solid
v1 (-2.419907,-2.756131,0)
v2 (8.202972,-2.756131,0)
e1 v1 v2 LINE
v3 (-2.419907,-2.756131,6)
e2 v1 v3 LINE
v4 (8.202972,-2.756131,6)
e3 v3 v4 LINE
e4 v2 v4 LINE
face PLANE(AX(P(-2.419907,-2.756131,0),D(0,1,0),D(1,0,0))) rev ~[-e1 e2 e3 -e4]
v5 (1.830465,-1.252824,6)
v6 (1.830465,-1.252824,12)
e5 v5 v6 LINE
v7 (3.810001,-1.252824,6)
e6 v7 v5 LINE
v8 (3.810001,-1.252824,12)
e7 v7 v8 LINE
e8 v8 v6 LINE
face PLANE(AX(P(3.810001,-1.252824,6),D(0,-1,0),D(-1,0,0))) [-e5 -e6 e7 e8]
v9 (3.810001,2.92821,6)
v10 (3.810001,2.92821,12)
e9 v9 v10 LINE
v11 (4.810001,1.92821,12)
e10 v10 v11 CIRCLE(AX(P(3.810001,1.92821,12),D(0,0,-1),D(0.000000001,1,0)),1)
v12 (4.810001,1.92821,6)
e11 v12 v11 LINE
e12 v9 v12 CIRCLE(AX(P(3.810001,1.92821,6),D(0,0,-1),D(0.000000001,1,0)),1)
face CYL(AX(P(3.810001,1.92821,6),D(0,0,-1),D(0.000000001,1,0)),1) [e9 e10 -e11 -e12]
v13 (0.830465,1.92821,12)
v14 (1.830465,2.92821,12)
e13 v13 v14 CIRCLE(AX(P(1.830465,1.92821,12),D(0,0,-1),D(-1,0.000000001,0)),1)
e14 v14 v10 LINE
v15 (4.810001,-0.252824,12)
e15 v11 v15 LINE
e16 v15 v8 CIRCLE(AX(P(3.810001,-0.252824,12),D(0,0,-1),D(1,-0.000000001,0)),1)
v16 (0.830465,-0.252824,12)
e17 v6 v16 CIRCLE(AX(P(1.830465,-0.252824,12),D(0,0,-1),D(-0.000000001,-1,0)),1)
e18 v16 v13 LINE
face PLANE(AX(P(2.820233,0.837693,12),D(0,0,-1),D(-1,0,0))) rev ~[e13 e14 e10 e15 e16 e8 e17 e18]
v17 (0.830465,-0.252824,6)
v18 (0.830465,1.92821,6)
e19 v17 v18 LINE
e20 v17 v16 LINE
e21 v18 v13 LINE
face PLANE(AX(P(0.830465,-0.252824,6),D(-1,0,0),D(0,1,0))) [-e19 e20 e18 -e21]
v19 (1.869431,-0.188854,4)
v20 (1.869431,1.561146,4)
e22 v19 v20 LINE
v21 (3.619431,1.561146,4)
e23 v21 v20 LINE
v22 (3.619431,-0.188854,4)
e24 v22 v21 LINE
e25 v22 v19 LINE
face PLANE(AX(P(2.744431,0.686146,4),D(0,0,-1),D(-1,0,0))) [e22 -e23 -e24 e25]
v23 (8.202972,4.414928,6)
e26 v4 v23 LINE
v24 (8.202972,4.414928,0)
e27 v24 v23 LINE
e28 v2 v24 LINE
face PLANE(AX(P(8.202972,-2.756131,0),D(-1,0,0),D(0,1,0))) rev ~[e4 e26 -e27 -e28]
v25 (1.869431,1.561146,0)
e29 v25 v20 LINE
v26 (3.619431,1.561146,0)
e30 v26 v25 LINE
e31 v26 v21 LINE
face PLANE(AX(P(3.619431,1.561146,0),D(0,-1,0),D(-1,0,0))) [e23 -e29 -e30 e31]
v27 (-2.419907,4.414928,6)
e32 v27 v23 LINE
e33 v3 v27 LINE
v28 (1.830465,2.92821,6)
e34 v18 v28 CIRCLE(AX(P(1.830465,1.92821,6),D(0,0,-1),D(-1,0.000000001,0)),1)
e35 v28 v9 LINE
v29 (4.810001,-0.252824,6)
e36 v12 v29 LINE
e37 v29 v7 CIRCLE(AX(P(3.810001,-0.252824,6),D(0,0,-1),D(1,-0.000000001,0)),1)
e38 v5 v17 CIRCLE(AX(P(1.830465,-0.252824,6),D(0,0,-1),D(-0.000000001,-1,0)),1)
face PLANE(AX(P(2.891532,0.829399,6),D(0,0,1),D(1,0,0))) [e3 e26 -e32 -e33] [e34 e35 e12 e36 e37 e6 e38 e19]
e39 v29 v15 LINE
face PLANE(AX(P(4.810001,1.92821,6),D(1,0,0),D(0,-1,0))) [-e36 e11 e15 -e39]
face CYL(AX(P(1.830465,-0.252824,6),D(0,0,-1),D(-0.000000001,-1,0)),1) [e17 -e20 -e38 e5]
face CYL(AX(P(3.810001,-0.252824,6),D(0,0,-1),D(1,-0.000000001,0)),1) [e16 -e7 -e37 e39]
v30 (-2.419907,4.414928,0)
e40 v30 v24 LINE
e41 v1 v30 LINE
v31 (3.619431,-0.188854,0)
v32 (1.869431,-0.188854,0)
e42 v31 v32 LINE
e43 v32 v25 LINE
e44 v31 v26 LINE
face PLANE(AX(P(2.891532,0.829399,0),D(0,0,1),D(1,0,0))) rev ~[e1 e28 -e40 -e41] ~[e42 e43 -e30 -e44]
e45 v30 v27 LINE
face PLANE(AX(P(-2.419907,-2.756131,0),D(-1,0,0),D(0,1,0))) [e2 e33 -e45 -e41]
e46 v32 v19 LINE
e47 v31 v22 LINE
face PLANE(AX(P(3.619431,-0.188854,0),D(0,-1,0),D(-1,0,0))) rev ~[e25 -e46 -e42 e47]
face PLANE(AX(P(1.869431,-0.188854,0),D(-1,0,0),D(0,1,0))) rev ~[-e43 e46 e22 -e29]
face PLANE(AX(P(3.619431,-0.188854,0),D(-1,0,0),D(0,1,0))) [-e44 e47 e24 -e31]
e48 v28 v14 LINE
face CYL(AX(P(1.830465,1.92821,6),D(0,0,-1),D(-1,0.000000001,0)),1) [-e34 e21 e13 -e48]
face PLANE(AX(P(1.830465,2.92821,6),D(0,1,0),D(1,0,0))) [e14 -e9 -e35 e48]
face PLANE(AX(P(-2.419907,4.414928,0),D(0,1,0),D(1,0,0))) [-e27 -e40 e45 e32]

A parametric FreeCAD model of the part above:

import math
import FreeCAD as App
import Part
import Sketcher
Q = App.Units.Quantity

doc = App.newDocument("Part")
body = doc.addObject("PartDesign::Body", "Body")

# Sketch on XY plane
sketch1 = body.newObject("Sketcher::SketchObject", "Sketch")
sketch1.AttachmentSupport = (doc.getObject("XY_Plane"), [""])
sketch1.MapMode = "FlatFace"
sketch1.addGeometry([
    Part.LineSegment(App.Vector(-2.419907, 4.414928, 0), App.Vector(-2.419907, -2.756131, 0)),
    Part.LineSegment(App.Vector(-2.419907, -2.756131, 0), App.Vector(8.202972, -2.756131, 0)),
    Part.LineSegment(App.Vector(8.202972, -2.756131, 0), App.Vector(8.202972, 4.414928, 0)),
    Part.LineSegment(App.Vector(8.202972, 4.414928, 0), App.Vector(-2.419907, 4.414928, 0)),
], False)
sketch1.addConstraint([
    Sketcher.Constraint("Coincident", 0, 2, 1, 1),
    Sketcher.Constraint("Coincident", 1, 2, 2, 1),
    Sketcher.Constraint("Coincident", 2, 2, 3, 1),
    Sketcher.Constraint("Coincident", 3, 2, 0, 1),
    Sketcher.Constraint("Vertical", 0),
    Sketcher.Constraint("Horizontal", 1),
    Sketcher.Constraint("Vertical", 2),
    Sketcher.Constraint("Horizontal", 3),
    Sketcher.Constraint("DistanceX", 1, 1, 1, 2, Q("10.622879 mm")),
    Sketcher.Constraint("DistanceY", 0, 2, 0, 1, Q("7.171059 mm")),
    Sketcher.Constraint("DistanceY", 0, 2, -1, 1, Q("2.756131 mm")),
    Sketcher.Constraint("DistanceX", -1, 1, 1, 2, Q("8.202972 mm")),
])
pad1 = body.newObject("PartDesign::Pad", "Pad")
pad1.Profile = sketch1
pad1.Length = 6

# Sketch on XY plane
sketch2 = body.newObject("Sketcher::SketchObject", "Sketch001")
sketch2.AttachmentSupport = (doc.getObject("XY_Plane"), [""])
sketch2.MapMode = "FlatFace"
sketch2.AttachmentOffset = App.Placement(App.Vector(0, 0, 6), App.Rotation())
sketch2.addGeometry([
    Part.LineSegment(App.Vector(3.810001, 2.92821, 0), App.Vector(1.830465, 2.92821, 0)),  # 0
    Part.ArcOfCircle(Part.Circle(App.Vector(1.830465, 1.92821, 0), App.Vector(0, 0, 1), 1), math.radians(90), math.radians(180)),  # 1
    Part.LineSegment(App.Vector(0.830465, 1.92821, 0), App.Vector(0.830465, -0.252824, 0)),  # 2
    Part.ArcOfCircle(Part.Circle(App.Vector(1.830465, -0.252824, 0), App.Vector(0, 0, 1), 1), math.radians(-180), math.radians(-90)),  # 3
    Part.LineSegment(App.Vector(1.830465, -1.252824, 0), App.Vector(3.810001, -1.252824, 0)),  # 4
    Part.ArcOfCircle(Part.Circle(App.Vector(3.810001, -0.252824, 0), App.Vector(0, 0, 1), 1), math.radians(-90), math.radians(0)),  # 5
    Part.LineSegment(App.Vector(4.810001, -0.252824, 0), App.Vector(4.810001, 1.92821, 0)),  # 6
    Part.ArcOfCircle(Part.Circle(App.Vector(3.810001, 1.92821, 0), App.Vector(0, 0, 1), 1), math.radians(0), math.radians(90)),  # 7
], False)
sketch2.addConstraint([
    Sketcher.Constraint("Tangent", 0, 2, 1, 1),
    Sketcher.Constraint("Tangent", 1, 2, 2, 1),
    Sketcher.Constraint("Tangent", 2, 2, 3, 1),
    Sketcher.Constraint("Tangent", 3, 2, 4, 1),
    Sketcher.Constraint("Tangent", 4, 2, 5, 1),
    Sketcher.Constraint("Tangent", 5, 2, 6, 1),
    Sketcher.Constraint("Tangent", 6, 2, 7, 1),
    Sketcher.Constraint("Tangent", 7, 2, 0, 1),
    Sketcher.Constraint("Horizontal", 0),
    Sketcher.Constraint("Vertical", 2),
    Sketcher.Constraint("Horizontal", 4),
    Sketcher.Constraint("Vertical", 6),
    Sketcher.Constraint("Equal", 1, 3),
    Sketcher.Constraint("Equal", 3, 5),
    Sketcher.Constraint("Equal", 5, 7),
    Sketcher.Constraint("Radius", 1, Q("1 mm")),
    Sketcher.Constraint("DistanceX", -1, 1, 5, 3, Q("3.810001 mm")),
    Sketcher.Constraint("DistanceX", 0, 2, 0, 1, Q("1.979535 mm")),
    Sketcher.Constraint("DistanceY", 2, 2, 2, 1, Q("2.181035 mm")),
    Sketcher.Constraint("DistanceY", -1, 1, 1, 3, Q("1.92821 mm")),
])
pad2 = body.newObject("PartDesign::Pad", "Pad001")
pad2.Profile = sketch2
pad2.Length = 6

# Sketch on XY plane
sketch3 = body.newObject("Sketcher::SketchObject", "Sketch002")
sketch3.AttachmentSupport = (doc.getObject("XY_Plane"), [""])
sketch3.MapMode = "FlatFace"
sketch3.addGeometry([
    Part.LineSegment(App.Vector(3.619431, 1.561146, 0), App.Vector(3.619431, -0.188854, 0)),
    Part.LineSegment(App.Vector(3.619431, -0.188854, 0), App.Vector(1.869431, -0.188854, 0)),
    Part.LineSegment(App.Vector(1.869431, -0.188854, 0), App.Vector(1.869431, 1.561146, 0)),
    Part.LineSegment(App.Vector(1.869431, 1.561146, 0), App.Vector(3.619431, 1.561146, 0)),
], False)
sketch3.addConstraint([
    Sketcher.Constraint("Coincident", 0, 2, 1, 1),
    Sketcher.Constraint("Coincident", 1, 2, 2, 1),
    Sketcher.Constraint("Coincident", 2, 2, 3, 1),
    Sketcher.Constraint("Coincident", 3, 2, 0, 1),
    Sketcher.Constraint("Vertical", 0),
    Sketcher.Constraint("Horizontal", 1),
    Sketcher.Constraint("Vertical", 2),
    Sketcher.Constraint("Horizontal", 3),
    Sketcher.Constraint("Equal", 3, 0),
    Sketcher.Constraint("DistanceX", 1, 2, 1, 1, Q("1.75 mm")),
    Sketcher.Constraint("DistanceX", -1, 1, 0, 2, Q("3.619431 mm")),
    Sketcher.Constraint("DistanceY", 0, 2, -1, 1, Q("0.188854 mm")),
])
pocket1 = body.newObject("PartDesign::Pocket", "Pocket")
pocket1.Profile = sketch3
pocket1.Length = 4
pocket1.Reversed = True

doc.recompute()
